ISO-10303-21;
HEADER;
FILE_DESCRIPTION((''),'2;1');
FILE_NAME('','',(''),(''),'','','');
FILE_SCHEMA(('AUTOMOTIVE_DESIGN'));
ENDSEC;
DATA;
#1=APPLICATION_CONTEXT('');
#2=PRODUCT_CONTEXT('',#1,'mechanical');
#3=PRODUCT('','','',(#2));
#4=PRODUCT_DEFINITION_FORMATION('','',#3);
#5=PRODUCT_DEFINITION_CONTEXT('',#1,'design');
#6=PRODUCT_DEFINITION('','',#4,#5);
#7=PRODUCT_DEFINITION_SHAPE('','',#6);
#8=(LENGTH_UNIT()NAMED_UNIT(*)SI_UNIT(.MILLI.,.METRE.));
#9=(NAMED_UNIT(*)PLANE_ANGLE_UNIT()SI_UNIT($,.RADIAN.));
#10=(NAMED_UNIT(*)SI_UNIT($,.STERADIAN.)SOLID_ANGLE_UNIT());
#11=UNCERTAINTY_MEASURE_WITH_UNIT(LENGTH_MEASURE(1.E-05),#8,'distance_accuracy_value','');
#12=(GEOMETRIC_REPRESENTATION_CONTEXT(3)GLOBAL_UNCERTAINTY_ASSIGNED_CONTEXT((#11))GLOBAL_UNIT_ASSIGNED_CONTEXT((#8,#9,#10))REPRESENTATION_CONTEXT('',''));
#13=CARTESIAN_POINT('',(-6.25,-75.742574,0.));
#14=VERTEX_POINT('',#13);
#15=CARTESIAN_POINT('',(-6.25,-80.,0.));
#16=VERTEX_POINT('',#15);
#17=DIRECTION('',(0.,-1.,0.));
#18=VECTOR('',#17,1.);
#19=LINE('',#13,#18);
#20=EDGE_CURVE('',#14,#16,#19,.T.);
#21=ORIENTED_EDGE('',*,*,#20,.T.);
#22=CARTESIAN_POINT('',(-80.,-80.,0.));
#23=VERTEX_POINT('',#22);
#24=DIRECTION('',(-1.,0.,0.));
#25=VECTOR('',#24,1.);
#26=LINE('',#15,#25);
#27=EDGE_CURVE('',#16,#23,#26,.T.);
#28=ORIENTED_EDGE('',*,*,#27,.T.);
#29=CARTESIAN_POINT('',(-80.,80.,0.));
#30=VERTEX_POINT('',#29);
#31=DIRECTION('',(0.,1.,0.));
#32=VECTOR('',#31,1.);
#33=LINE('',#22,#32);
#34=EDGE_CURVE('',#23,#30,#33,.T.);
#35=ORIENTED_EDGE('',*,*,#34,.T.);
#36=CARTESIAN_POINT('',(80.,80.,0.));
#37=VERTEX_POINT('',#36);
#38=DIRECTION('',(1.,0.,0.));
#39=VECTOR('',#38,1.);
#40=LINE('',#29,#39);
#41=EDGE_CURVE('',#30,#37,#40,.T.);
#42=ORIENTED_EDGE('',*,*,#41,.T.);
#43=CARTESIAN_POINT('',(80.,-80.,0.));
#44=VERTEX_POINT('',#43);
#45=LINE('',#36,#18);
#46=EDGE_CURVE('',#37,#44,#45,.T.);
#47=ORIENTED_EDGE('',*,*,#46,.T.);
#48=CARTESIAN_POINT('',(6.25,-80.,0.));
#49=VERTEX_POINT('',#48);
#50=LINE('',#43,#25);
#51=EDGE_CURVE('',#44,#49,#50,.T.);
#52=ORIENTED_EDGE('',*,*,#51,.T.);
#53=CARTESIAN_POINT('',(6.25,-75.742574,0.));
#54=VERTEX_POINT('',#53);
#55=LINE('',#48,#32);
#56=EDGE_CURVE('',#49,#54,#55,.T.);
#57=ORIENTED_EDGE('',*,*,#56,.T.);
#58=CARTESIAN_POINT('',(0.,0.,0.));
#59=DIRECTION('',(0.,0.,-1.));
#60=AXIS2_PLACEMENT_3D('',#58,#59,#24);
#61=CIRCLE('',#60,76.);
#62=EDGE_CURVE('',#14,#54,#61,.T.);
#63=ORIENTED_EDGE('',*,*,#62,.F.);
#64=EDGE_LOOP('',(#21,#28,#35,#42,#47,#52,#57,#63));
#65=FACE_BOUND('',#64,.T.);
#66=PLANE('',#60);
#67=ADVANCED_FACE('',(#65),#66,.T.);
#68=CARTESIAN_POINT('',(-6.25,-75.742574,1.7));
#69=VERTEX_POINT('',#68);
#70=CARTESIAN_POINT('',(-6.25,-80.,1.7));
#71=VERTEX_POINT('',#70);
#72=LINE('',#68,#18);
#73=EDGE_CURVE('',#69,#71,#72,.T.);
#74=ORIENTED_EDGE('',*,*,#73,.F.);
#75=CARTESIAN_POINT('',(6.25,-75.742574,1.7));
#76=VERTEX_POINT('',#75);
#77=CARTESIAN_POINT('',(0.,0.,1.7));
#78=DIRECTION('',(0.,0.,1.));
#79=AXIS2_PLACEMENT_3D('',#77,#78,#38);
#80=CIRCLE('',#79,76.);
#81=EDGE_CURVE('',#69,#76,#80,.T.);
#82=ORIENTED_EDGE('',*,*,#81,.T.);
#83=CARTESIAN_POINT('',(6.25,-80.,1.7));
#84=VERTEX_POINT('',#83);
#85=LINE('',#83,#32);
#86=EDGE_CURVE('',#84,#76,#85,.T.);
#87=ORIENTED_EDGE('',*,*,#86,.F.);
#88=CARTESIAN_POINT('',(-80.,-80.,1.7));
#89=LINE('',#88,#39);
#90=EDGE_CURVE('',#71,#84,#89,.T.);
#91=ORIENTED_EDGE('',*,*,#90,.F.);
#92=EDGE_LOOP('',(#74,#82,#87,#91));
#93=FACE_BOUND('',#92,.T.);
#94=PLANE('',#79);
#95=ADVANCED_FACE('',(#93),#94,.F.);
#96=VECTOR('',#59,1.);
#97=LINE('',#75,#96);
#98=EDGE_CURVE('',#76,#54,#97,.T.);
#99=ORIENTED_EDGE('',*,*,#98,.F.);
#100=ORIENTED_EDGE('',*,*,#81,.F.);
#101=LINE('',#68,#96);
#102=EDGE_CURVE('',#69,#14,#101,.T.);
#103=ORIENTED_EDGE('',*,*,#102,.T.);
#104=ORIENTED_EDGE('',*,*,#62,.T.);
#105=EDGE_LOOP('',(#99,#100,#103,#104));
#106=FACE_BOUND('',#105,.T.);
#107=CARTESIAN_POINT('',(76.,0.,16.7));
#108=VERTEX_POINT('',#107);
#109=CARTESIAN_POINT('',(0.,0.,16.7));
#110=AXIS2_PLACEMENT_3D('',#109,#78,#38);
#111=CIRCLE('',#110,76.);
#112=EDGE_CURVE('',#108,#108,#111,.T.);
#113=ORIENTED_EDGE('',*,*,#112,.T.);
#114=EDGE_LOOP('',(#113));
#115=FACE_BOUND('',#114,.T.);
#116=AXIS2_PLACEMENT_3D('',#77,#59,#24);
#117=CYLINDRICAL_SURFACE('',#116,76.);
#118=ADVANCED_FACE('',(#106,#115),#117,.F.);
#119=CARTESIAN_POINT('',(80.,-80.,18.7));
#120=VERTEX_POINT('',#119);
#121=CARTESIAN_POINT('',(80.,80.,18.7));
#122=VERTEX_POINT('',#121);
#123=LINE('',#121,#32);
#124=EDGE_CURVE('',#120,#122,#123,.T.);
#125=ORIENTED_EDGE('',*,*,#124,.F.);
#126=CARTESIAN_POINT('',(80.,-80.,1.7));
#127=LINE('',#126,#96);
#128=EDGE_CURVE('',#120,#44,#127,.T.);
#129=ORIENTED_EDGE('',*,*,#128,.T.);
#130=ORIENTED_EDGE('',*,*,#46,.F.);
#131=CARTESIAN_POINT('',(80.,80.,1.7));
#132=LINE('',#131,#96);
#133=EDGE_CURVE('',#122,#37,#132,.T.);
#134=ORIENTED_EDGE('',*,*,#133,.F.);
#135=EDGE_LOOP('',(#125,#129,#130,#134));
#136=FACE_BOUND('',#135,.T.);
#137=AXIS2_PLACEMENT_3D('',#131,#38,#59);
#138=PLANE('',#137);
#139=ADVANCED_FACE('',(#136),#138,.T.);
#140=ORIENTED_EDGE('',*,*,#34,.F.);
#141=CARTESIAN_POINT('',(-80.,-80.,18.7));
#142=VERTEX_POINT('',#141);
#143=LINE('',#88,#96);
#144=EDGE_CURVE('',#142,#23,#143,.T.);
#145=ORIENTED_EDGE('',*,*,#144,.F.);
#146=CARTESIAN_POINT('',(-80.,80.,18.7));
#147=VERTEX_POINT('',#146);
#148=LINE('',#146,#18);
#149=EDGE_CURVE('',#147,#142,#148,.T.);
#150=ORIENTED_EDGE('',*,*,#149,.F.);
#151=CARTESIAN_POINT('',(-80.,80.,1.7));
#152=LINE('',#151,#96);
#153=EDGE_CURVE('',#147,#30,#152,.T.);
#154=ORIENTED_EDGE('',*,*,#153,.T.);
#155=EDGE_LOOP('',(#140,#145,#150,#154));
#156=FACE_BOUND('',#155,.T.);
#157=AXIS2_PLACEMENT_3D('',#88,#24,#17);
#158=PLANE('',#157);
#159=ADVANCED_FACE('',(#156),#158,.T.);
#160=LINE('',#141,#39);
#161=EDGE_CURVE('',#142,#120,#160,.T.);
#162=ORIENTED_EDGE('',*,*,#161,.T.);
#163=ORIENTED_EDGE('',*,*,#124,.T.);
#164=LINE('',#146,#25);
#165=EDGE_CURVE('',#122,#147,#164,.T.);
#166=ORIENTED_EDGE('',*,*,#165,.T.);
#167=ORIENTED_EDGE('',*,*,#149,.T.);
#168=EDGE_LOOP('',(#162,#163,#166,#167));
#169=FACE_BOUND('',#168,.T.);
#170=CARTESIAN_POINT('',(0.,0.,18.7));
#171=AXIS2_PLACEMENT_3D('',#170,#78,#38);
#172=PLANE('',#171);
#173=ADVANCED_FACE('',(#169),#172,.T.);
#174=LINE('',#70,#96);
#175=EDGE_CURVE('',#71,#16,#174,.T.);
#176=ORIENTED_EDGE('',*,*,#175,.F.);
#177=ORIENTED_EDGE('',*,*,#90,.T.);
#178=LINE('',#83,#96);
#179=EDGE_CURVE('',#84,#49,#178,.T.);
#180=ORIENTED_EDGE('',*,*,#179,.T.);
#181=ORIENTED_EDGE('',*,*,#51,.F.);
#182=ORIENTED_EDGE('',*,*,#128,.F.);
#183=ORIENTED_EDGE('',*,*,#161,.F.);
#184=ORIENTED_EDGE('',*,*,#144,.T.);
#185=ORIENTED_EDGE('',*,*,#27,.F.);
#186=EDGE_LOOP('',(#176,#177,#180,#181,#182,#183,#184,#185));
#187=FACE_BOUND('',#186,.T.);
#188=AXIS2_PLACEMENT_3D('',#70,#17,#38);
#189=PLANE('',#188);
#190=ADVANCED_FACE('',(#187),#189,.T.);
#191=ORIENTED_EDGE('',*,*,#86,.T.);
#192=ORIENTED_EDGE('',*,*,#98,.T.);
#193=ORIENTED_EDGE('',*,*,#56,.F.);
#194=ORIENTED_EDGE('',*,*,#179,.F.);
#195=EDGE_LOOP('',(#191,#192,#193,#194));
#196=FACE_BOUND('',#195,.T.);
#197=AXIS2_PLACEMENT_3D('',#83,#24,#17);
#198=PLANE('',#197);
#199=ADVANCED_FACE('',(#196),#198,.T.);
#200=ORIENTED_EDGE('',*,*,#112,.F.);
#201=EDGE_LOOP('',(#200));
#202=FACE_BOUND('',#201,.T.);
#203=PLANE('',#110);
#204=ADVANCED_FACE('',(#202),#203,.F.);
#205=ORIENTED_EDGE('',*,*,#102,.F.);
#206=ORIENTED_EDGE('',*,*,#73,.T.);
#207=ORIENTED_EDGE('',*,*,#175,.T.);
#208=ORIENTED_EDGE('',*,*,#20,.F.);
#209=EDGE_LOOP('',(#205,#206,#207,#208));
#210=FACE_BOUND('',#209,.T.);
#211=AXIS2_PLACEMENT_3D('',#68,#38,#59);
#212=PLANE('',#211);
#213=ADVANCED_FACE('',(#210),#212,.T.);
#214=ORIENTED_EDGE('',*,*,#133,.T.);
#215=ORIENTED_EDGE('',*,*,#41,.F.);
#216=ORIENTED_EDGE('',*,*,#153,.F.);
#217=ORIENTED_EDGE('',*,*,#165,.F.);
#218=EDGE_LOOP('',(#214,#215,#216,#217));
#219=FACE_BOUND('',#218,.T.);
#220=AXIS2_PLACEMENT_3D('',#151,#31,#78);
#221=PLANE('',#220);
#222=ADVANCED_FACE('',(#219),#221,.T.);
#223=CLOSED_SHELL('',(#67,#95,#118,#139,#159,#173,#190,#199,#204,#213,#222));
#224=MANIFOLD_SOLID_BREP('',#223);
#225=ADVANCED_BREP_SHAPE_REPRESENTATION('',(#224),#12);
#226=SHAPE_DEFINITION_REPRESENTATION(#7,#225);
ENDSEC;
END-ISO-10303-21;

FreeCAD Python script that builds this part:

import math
import FreeCAD as App
import Part
import Sketcher
Q = App.Units.Quantity


def add_polygon(sketch, points):
    """Adds a closed chain of lines whose ends are joined by coincident constraints."""
    first, n = sketch.GeometryCount, len(points)
    for a, b in zip(points, points[1:] + points[:1]):
        sketch.addGeometry(Part.LineSegment(App.Vector(*a, 0), App.Vector(*b, 0)), False)
    for i in range(n):
        sketch.addConstraint(Sketcher.Constraint("Coincident", first + i, 2, first + (i + 1) % n, 1))

doc = App.newDocument("Part")
body = doc.addObject("PartDesign::Body", "Body")

# Sketch on XY plane
sketch1 = body.newObject("Sketcher::SketchObject", "Sketch")
sketch1.AttachmentSupport = (doc.getObject("XY_Plane"), [""])
sketch1.MapMode = "FlatFace"
sketch1.addGeometry(Part.LineSegment(App.Vector(-6.25, -80, 0), App.Vector(-6.25, -75.742574, 0)), False)
sketch1.addGeometry(Part.ArcOfCircle(Part.Circle(App.Vector(0, 0, 0), App.Vector(0, 0, 1), 76), math.radians(-85.282849), math.radians(265.282849)), False)
sketch1.addGeometry(Part.LineSegment(App.Vector(6.25, -75.742574, 0), App.Vector(6.25, -80, 0)), False)
sketch1.addGeometry(Part.LineSegment(App.Vector(6.25, -80, 0), App.Vector(80, -80, 0)), False)
sketch1.addGeometry(Part.LineSegment(App.Vector(80, -80, 0), App.Vector(80, 80, 0)), False)
sketch1.addGeometry(Part.LineSegment(App.Vector(80, 80, 0), App.Vector(-80, 80, 0)), False)
sketch1.addGeometry(Part.LineSegment(App.Vector(-80, 80, 0), App.Vector(-80, -80, 0)), False)
sketch1.addGeometry(Part.LineSegment(App.Vector(-80, -80, 0), App.Vector(-6.25, -80, 0)), False)
sketch1.addConstraint(Sketcher.Constraint("Coincident", 0, 2, 1, 2))
sketch1.addConstraint(Sketcher.Constraint("Coincident", 1, 1, 2, 1))
sketch1.addConstraint(Sketcher.Constraint("Coincident", 2, 2, 3, 1))
sketch1.addConstraint(Sketcher.Constraint("Coincident", 3, 2, 4, 1))
sketch1.addConstraint(Sketcher.Constraint("Coincident", 4, 2, 5, 1))
sketch1.addConstraint(Sketcher.Constraint("Coincident", 5, 2, 6, 1))
sketch1.addConstraint(Sketcher.Constraint("Coincident", 6, 2, 7, 1))
sketch1.addConstraint(Sketcher.Constraint("Coincident", 7, 2, 0, 1))
sketch1.addConstraint(Sketcher.Constraint("Vertical", 0))
sketch1.addConstraint(Sketcher.Constraint("Vertical", 2))
sketch1.addConstraint(Sketcher.Constraint("Horizontal", 3))
sketch1.addConstraint(Sketcher.Constraint("Vertical", 4))
sketch1.addConstraint(Sketcher.Constraint("Horizontal", 5))
sketch1.addConstraint(Sketcher.Constraint("Vertical", 6))
sketch1.addConstraint(Sketcher.Constraint("Horizontal", 7))
sketch1.addConstraint(Sketcher.Constraint("Coincident", 1, 3, -1, 1))
sketch1.addConstraint(Sketcher.Constraint("Symmetric", 3, 2, 5, 2, -1, 1))
sketch1.addConstraint(Sketcher.Constraint("Symmetric", 2, 2, 7, 2, -2))
sketch1.addConstraint(Sketcher.Constraint("Equal", 5, 4))
sketch1.addConstraint(Sketcher.Constraint("Radius", 1, Q("76 mm")))
sketch1.addConstraint(Sketcher.Constraint("DistanceX", 5, 2, 5, 1, Q("160 mm")))
sketch1.addConstraint(Sketcher.Constraint("DistanceX", 3, 1, 3, 2, Q("73.75 mm")))
pad1 = body.newObject("PartDesign::Pad", "Pad")
pad1.Profile = sketch1
pad1.Length = 1.7

# Sketch on XY plane
sketch2 = body.newObject("Sketcher::SketchObject", "Sketch001")
sketch2.AttachmentSupport = (doc.getObject("XY_Plane"), [""])
sketch2.MapMode = "FlatFace"
sketch2.AttachmentOffset = App.Placement(App.Vector(0, 0, 1.7), App.Rotation())
add_polygon(sketch2, [(-80, 80), (-80, -80), (80, -80), (80, 80)])  # lines 0-3
sketch2.addGeometry(Part.Circle(App.Vector(0, 0, 0), App.Vector(0, 0, 1), 76), False)  # 4
sketch2.addConstraint(Sketcher.Constraint("Vertical", 0))
sketch2.addConstraint(Sketcher.Constraint("Horizontal", 1))
sketch2.addConstraint(Sketcher.Constraint("Vertical", 2))
sketch2.addConstraint(Sketcher.Constraint("Horizontal", 3))
sketch2.addConstraint(Sketcher.Constraint("Coincident", 4, 3, -1, 1))
sketch2.addConstraint(Sketcher.Constraint("Symmetric", 0, 2, 2, 2, -1, 1))
sketch2.addConstraint(Sketcher.Constraint("Equal", 3, 0))
sketch2.addConstraint(Sketcher.Constraint("Diameter", 4, Q("152 mm")))
sketch2.addConstraint(Sketcher.Constraint("DistanceX", 1, 1, 1, 2, Q("160 mm")))
pad2 = body.newObject("PartDesign::Pad", "Pad001")
pad2.Profile = sketch2
pad2.Length = 15

# Sketch on XY plane
sketch3 = body.newObject("Sketcher::SketchObject", "Sketch002")
sketch3.AttachmentSupport = (doc.getObject("XY_Plane"), [""])
sketch3.MapMode = "FlatFace"
sketch3.AttachmentOffset = App.Placement(App.Vector(0, 0, 16.7), App.Rotation())
add_polygon(sketch3, [(-80, 80), (-80, -80), (80, -80), (80, 80)])  # lines 0-3
sketch3.addConstraint(Sketcher.Constraint("Vertical", 0))
sketch3.addConstraint(Sketcher.Constraint("Horizontal", 1))
sketch3.addConstraint(Sketcher.Constraint("Vertical", 2))
sketch3.addConstraint(Sketcher.Constraint("Horizontal", 3))
sketch3.addConstraint(Sketcher.Constraint("Symmetric", 0, 2, 2, 2, -1, 1))
sketch3.addConstraint(Sketcher.Constraint("Equal", 3, 0))
sketch3.addConstraint(Sketcher.Constraint("DistanceX", 1, 1, 1, 2, Q("160 mm")))
pad3 = body.newObject("PartDesign::Pad", "Pad002")
pad3.Profile = sketch3
pad3.Length = 2

doc.recompute()
